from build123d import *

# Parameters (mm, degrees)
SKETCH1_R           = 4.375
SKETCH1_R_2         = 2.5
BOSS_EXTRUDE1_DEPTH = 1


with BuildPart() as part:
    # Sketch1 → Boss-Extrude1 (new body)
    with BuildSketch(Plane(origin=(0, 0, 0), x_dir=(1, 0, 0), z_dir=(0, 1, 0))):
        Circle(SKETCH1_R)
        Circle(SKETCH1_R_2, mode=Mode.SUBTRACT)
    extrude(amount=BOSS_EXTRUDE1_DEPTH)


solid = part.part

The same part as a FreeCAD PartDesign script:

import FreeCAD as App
import Part
import Sketcher

V = App.Vector

doc = App.newDocument("Part")
body = doc.addObject("PartDesign::Body", "Body")

sketch1 = body.newObject("Sketcher::SketchObject", "Sketch")
sketch1.AttachmentSupport = (doc.getObject("XZ_Plane"), [""])
sketch1.MapMode = "FlatFace"
sketch1.addGeometry([
    Part.Circle(V(0, 0, 0), V(0, 0, 1), 4.375),
    Part.Circle(V(0, 0, 0), V(0, 0, 1), 2.5),
], False)
sketch1.addConstraint([
    Sketcher.Constraint("Coincident", 0, 3, -1, 1),
    Sketcher.Constraint("Coincident", 1, 3, -1, 1),
    Sketcher.Constraint("Diameter", 1, 5.0),
    Sketcher.Constraint("Diameter", 0, 8.75),
])
pad1 = body.newObject("PartDesign::Pad", "Pad")
pad1.Profile = sketch1
pad1.Length = 1
pad1.Reversed = True

doc.recompute()
